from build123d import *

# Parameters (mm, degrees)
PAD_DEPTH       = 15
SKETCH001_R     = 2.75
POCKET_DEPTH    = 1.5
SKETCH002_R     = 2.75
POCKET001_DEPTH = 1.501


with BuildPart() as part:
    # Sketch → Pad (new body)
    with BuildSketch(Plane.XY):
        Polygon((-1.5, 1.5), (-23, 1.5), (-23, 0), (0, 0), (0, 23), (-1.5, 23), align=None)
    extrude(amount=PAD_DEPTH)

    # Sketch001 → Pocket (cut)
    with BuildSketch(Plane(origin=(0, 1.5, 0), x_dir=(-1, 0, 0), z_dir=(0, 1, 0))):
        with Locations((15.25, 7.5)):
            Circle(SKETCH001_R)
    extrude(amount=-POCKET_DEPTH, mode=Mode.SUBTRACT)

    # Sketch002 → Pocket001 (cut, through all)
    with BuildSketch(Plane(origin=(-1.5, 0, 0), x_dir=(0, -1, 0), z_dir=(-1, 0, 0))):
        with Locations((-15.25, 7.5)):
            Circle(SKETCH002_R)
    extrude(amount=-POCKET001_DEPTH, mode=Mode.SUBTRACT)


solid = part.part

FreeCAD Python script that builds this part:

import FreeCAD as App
import Part
import Sketcher
Q = App.Units.Quantity


def add_polygon(sketch, points):
    """Adds a closed chain of lines whose ends are joined by coincident constraints."""
    first, n = sketch.GeometryCount, len(points)
    for a, b in zip(points, points[1:] + points[:1]):
        sketch.addGeometry(Part.LineSegment(App.Vector(*a, 0), App.Vector(*b, 0)), False)
    for i in range(n):
        sketch.addConstraint(Sketcher.Constraint("Coincident", first + i, 2, first + (i + 1) % n, 1))

doc = App.newDocument("Part")
params = doc.addObject("Spreadsheet::Sheet", "Params")
for row, (alias, value) in enumerate([
    ("sketch1_width", "23 mm"),
    ("sketch1_width2", "21.5 mm"),
    ("pad1_length", "15 mm"),
    ("sketch2_diameter", "5.5 mm"),
    ("pocket1_length", "1.5 mm"),
    ("sketch3_diameter", "5.5 mm"),
], start=1):
    params.set(f"A{row}", alias)
    params.set(f"B{row}", "=" + value)
    params.setAlias(f"B{row}", alias)

body = doc.addObject("PartDesign::Body", "Body")

sketch1 = body.newObject("Sketcher::SketchObject", "Sketch")
sketch1.AttachmentSupport = (doc.getObject("XY_Plane"), [""])
sketch1.MapMode = "FlatFace"
add_polygon(sketch1, [(-1.5, 1.5), (-23, 1.5), (-23, 0), (0, 0), (0, 23), (-1.5, 23)])
sketch1.addConstraint([
    Sketcher.Constraint("Horizontal", 0),
    Sketcher.Constraint("Vertical", 1),
    Sketcher.Constraint("Horizontal", 2),
    Sketcher.Constraint("Vertical", 3),
    Sketcher.Constraint("Horizontal", 4),
    Sketcher.Constraint("Vertical", 5),
    Sketcher.Constraint("Coincident", 2, 2, -1, 1),
    Sketcher.Constraint("Equal", 4, 1),
    Sketcher.Constraint("Equal", 2, 3),
    Sketcher.Constraint("DistanceX", 2, 1, 2, 2, Q("23 mm")),
    Sketcher.Constraint("DistanceX", 0, 2, 0, 1, Q("21.5 mm")),
])
sketch1.setExpression("Constraints[15]", "Params.sketch1_width")
sketch1.setExpression("Constraints[16]", "Params.sketch1_width2")
pad1 = body.newObject("PartDesign::Pad", "Pad")
pad1.Profile = sketch1
pad1.setExpression("Length", "Params.pad1_length")

sketch2 = body.newObject("Sketcher::SketchObject", "Sketch001")
sketch2.AttachmentSupport = (doc.getObject("XZ_Plane"), [""])
sketch2.MapMode = "FlatFace"
sketch2.AttachmentOffset = App.Placement(App.Vector(0, 0, -1.5), App.Rotation())
sketch2.addGeometry(Part.Circle(App.Vector(-15.2, 7.5, 0), App.Vector(0, 0, 1), 2.8), False)
sketch2.addConstraint([
    Sketcher.Constraint("Diameter", 0, Q("5.5 mm")),
    Sketcher.Constraint("DistanceY", -1, 1, 0, 3, Q("7.5 mm")),
    Sketcher.Constraint("DistanceX", 0, 3, -1, 1, Q("15.25 mm")),
])
sketch2.setExpression("Constraints[0]", "Params.sketch2_diameter")
pocket1 = body.newObject("PartDesign::Pocket", "Pocket")
pocket1.Profile = sketch2
pocket1.setExpression("Length", "Params.pocket1_length")
pocket1.Reversed = True

sketch3 = body.newObject("Sketcher::SketchObject", "Sketch002")
sketch3.AttachmentSupport = (doc.getObject("YZ_Plane"), [""])
sketch3.MapMode = "FlatFace"
sketch3.AttachmentOffset = App.Placement(App.Vector(0, 0, -1.5), App.Rotation())
sketch3.addGeometry(Part.Circle(App.Vector(15.2, 7.5, 0), App.Vector(0, 0, 1), 2.8), False)
sketch3.addConstraint([
    Sketcher.Constraint("Diameter", 0, Q("5.5 mm")),
    Sketcher.Constraint("DistanceY", -1, 1, 0, 3, Q("7.5 mm")),
    Sketcher.Constraint("DistanceX", -1, 1, 0, 3, Q("15.25 mm")),
])
sketch3.setExpression("Constraints[0]", "Params.sketch3_diameter")
pocket2 = body.newObject("PartDesign::Pocket", "Pocket001")
pocket2.Profile = sketch3
pocket2.Type = "ThroughAll"
pocket2.Reversed = True

doc.recompute()
